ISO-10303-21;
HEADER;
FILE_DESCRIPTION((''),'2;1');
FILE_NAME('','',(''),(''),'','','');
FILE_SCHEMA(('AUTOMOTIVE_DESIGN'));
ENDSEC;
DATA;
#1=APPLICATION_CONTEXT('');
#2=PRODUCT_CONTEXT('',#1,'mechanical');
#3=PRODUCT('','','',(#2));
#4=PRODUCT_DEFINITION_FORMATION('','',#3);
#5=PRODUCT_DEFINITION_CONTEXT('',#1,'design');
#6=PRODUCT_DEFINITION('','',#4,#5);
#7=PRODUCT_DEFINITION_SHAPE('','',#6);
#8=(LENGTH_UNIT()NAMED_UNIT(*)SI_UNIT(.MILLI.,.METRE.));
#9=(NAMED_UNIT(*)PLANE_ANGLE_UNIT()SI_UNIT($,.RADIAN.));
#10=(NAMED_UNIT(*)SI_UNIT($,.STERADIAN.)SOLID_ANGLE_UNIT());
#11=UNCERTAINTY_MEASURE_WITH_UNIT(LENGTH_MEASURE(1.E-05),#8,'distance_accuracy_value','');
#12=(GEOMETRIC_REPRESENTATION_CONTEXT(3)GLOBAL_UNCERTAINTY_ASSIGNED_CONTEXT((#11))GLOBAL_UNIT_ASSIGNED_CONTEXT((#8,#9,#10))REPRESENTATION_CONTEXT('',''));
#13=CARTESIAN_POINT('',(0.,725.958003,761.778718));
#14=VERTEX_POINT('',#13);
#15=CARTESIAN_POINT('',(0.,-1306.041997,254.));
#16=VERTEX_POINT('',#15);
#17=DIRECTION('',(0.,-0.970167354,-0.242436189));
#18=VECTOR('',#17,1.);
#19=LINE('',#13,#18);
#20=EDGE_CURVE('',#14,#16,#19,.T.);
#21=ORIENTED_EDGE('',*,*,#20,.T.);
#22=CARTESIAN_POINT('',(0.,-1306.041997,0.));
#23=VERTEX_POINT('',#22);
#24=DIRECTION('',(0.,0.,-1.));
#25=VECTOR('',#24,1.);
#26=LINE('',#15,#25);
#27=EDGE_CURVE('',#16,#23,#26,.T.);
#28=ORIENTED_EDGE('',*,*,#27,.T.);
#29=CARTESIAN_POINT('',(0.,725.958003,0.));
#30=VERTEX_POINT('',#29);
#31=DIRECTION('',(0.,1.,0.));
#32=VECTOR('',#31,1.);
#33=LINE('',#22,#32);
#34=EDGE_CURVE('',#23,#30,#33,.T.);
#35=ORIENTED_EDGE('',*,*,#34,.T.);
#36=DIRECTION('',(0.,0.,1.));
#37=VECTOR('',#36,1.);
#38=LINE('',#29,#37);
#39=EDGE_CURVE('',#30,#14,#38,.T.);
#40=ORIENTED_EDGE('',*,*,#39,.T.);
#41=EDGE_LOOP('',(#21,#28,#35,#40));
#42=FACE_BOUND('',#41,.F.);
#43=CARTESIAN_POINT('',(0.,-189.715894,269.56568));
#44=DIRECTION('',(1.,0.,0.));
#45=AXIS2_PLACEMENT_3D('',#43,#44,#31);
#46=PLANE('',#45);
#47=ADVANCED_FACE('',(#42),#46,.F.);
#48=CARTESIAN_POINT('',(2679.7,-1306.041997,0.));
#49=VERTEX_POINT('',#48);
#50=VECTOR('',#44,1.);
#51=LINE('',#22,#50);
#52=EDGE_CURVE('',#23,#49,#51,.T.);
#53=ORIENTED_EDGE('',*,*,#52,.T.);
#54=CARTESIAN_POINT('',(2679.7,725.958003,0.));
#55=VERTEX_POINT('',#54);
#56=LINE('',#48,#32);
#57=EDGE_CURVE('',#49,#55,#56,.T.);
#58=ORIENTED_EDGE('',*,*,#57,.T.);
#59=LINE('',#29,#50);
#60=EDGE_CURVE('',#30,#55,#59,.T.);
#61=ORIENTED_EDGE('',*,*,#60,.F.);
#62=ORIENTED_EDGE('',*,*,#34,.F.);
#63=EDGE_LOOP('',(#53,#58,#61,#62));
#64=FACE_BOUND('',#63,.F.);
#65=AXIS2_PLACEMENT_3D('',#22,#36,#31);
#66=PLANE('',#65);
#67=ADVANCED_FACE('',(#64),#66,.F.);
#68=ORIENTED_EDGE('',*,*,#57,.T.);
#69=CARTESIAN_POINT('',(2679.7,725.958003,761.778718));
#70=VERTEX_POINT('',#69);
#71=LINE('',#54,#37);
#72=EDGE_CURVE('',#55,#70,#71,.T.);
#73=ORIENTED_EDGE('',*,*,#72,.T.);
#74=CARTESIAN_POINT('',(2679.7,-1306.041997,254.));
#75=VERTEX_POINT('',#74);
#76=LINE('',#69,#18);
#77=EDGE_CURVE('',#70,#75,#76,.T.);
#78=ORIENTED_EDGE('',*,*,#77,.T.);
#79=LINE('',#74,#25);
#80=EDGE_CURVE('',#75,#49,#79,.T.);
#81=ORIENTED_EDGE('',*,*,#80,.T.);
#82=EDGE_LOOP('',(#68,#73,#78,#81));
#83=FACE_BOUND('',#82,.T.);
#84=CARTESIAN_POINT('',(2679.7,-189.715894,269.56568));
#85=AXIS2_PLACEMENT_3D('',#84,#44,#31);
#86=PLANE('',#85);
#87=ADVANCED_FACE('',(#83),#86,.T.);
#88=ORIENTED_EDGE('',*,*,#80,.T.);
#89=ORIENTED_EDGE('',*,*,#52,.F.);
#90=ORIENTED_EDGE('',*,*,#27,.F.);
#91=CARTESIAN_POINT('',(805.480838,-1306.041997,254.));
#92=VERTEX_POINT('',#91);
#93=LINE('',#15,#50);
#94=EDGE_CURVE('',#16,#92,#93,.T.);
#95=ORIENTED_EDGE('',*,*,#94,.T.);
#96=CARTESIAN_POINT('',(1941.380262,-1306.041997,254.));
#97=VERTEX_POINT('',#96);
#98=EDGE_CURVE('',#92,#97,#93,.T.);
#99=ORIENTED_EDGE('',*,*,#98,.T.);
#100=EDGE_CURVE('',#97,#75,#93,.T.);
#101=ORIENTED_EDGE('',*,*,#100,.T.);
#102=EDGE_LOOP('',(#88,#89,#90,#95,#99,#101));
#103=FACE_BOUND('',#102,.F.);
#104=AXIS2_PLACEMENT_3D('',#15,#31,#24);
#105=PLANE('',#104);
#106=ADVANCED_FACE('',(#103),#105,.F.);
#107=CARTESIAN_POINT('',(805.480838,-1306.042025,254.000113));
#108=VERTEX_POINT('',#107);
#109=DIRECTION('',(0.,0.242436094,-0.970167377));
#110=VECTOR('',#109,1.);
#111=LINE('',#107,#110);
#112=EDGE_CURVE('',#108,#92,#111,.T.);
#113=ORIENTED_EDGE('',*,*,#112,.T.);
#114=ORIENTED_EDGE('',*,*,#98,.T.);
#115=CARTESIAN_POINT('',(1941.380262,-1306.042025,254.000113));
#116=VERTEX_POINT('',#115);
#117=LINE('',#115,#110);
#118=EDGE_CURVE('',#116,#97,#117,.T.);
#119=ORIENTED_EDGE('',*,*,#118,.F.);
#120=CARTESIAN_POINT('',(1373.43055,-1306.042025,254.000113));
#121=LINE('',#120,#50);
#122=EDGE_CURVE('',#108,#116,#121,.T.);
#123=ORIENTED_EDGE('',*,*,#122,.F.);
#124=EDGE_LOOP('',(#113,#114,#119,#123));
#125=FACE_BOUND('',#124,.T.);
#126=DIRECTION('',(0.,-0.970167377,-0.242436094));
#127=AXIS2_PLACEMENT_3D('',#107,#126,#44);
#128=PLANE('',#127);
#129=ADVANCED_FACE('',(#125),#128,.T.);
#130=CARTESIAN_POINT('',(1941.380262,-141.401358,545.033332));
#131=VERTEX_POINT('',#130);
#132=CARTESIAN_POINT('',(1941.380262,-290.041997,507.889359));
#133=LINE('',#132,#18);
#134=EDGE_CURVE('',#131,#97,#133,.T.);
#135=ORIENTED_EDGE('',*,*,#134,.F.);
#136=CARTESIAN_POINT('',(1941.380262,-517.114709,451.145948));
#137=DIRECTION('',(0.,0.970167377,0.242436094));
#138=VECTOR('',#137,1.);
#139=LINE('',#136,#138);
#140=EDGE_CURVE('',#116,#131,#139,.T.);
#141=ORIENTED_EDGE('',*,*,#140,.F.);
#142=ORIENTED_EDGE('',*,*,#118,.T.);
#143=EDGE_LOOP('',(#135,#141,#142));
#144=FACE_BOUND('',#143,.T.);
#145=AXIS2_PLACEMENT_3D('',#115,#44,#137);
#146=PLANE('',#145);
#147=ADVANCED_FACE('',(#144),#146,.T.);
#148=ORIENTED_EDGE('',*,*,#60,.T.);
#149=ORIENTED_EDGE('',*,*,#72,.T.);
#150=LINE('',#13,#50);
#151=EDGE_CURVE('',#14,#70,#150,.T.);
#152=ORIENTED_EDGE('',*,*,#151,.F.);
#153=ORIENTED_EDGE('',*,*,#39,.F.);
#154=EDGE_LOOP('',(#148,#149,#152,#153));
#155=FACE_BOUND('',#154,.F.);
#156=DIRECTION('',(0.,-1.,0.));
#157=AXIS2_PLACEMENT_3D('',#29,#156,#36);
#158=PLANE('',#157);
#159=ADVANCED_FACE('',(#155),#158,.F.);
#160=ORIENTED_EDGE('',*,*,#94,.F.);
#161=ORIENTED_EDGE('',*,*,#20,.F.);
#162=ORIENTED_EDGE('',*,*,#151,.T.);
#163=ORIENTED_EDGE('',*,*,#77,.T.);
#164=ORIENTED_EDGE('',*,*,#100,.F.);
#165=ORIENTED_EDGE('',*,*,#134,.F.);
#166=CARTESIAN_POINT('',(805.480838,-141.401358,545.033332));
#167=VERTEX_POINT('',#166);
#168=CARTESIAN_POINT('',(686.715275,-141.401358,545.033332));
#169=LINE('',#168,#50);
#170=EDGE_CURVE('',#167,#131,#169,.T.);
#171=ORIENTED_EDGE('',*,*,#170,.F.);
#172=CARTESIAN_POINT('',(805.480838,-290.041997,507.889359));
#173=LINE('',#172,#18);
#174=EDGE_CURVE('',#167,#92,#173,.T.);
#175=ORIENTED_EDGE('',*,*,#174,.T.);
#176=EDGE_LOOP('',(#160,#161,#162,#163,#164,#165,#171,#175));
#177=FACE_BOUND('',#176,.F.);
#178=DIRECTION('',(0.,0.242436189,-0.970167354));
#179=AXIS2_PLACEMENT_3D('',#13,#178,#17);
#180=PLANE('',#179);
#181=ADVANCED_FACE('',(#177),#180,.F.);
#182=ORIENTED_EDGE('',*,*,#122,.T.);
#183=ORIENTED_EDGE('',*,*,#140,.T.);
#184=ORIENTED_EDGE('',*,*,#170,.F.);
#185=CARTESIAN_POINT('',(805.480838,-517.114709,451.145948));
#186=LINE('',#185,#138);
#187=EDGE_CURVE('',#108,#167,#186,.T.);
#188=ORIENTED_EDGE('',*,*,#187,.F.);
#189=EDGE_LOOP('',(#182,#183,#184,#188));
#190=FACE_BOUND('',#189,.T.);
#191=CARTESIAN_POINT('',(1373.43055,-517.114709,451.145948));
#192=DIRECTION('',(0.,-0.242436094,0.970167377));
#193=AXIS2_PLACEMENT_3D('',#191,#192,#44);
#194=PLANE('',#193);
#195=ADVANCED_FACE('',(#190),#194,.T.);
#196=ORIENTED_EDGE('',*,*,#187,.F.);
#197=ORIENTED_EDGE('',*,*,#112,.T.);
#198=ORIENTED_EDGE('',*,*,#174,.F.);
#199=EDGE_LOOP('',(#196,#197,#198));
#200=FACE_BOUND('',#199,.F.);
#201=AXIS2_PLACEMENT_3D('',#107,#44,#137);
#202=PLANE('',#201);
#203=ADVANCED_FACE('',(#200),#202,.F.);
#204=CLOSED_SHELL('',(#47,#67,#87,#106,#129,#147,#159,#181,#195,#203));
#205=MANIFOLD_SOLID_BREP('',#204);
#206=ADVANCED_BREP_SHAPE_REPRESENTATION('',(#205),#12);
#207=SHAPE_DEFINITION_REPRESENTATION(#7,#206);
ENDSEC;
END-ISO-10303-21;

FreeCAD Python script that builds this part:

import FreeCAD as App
import Part
import Sketcher
Q = App.Units.Quantity


def add_polygon(sketch, points):
    """Adds a closed chain of lines whose ends are joined by coincident constraints."""
    first, n = sketch.GeometryCount, len(points)
    for a, b in zip(points, points[1:] + points[:1]):
        sketch.addGeometry(Part.LineSegment(App.Vector(*a, 0), App.Vector(*b, 0)), False)
    for i in range(n):
        sketch.addConstraint(Sketcher.Constraint("Coincident", first + i, 2, first + (i + 1) % n, 1))

doc = App.newDocument("Part")
params = doc.addObject("Spreadsheet::Sheet", "Params")
for row, (alias, value) in enumerate([
    ("sketch1_width", "80 in"),
    ("sketch1_height", "10 in"),
    ("sketch1_length", "82.46 in"),
    ("pad1_length", "105.5 in"),
    ("pad2_length", "10 in"),
], start=1):
    params.set(f"A{row}", alias)
    params.set(f"B{row}", "=" + value)
    params.setAlias(f"B{row}", alias)

body = doc.addObject("PartDesign::Body", "Body")

# Sketch on YZ plane
sketch1 = body.newObject("Sketcher::SketchObject", "Sketch")
sketch1.AttachmentSupport = (doc.getObject("YZ_Plane"), [""])
sketch1.MapMode = "FlatFace"
add_polygon(sketch1, [(725.958003, 0), (725.958003, 761.778718), (-1306.041997, 254), (-1306.041997, 0)])  # lines 0-3
sketch1.addConstraint([
    Sketcher.Constraint("Vertical", 0),
    Sketcher.Constraint("Vertical", 2),
    Sketcher.Constraint("Horizontal", 3),
    Sketcher.Constraint("PointOnObject", 2, 2, -1),
    Sketcher.Constraint("DistanceX", 3, 1, 3, 2, Q("80 in")),
    Sketcher.Constraint("DistanceY", 2, 2, 2, 1, Q("10 in")),
    Sketcher.Constraint("Distance", 1, Q("82.46 in")),
    Sketcher.Constraint("DistanceX", -1, 1, 0, 2, Q("725.958003 mm")),
])
sketch1.setExpression("Constraints[8]", "Params.sketch1_width")
sketch1.setExpression("Constraints[9]", "Params.sketch1_height")
sketch1.setExpression("Constraints[10]", "Params.sketch1_length")
pad1 = body.newObject("PartDesign::Pad", "Pad")
pad1.Profile = sketch1
pad1.setExpression("Length", "Params.pad1_length")

# Sketch on an angled plane
sketch2 = body.newObject("Sketcher::SketchObject", "Sketch001")
sketch2.Placement = App.Placement(App.Vector(0, -136.504751, 546.25695), App.Rotation(App.Vector(1, 0, 0), App.Vector(0, 0.970167377, 0.242436094), App.Vector(0, -0.242436094, 0.970167377), "ZXY"))
add_polygon(sketch2, [(805.480838, 420.873106), (805.480838, -1205.500515), (1941.380262, -1205.500515), (1941.380262, 420.873106)])  # lines 0-3
sketch2.addConstraint([
    Sketcher.Constraint("Vertical", 0),
    Sketcher.Constraint("Horizontal", 1),
    Sketcher.Constraint("Vertical", 2),
    Sketcher.Constraint("Horizontal", 3),
    Sketcher.Constraint("DistanceY", 0, 2, 0, 1, Q("1626.37362 mm")),
    Sketcher.Constraint("DistanceX", 1, 1, 1, 2, Q("1135.899424 mm")),
    Sketcher.Constraint("DistanceX", -1, 1, 0, 2, Q("805.480838 mm")),
    Sketcher.Constraint("DistanceY", 0, 2, -1, 1, Q("1205.500515 mm")),
])
pad2 = body.newObject("PartDesign::Pad", "Pad001")
pad2.Profile = sketch2
pad2.setExpression("Length", "Params.pad2_length")
pad2.Reversed = True

doc.recompute()
